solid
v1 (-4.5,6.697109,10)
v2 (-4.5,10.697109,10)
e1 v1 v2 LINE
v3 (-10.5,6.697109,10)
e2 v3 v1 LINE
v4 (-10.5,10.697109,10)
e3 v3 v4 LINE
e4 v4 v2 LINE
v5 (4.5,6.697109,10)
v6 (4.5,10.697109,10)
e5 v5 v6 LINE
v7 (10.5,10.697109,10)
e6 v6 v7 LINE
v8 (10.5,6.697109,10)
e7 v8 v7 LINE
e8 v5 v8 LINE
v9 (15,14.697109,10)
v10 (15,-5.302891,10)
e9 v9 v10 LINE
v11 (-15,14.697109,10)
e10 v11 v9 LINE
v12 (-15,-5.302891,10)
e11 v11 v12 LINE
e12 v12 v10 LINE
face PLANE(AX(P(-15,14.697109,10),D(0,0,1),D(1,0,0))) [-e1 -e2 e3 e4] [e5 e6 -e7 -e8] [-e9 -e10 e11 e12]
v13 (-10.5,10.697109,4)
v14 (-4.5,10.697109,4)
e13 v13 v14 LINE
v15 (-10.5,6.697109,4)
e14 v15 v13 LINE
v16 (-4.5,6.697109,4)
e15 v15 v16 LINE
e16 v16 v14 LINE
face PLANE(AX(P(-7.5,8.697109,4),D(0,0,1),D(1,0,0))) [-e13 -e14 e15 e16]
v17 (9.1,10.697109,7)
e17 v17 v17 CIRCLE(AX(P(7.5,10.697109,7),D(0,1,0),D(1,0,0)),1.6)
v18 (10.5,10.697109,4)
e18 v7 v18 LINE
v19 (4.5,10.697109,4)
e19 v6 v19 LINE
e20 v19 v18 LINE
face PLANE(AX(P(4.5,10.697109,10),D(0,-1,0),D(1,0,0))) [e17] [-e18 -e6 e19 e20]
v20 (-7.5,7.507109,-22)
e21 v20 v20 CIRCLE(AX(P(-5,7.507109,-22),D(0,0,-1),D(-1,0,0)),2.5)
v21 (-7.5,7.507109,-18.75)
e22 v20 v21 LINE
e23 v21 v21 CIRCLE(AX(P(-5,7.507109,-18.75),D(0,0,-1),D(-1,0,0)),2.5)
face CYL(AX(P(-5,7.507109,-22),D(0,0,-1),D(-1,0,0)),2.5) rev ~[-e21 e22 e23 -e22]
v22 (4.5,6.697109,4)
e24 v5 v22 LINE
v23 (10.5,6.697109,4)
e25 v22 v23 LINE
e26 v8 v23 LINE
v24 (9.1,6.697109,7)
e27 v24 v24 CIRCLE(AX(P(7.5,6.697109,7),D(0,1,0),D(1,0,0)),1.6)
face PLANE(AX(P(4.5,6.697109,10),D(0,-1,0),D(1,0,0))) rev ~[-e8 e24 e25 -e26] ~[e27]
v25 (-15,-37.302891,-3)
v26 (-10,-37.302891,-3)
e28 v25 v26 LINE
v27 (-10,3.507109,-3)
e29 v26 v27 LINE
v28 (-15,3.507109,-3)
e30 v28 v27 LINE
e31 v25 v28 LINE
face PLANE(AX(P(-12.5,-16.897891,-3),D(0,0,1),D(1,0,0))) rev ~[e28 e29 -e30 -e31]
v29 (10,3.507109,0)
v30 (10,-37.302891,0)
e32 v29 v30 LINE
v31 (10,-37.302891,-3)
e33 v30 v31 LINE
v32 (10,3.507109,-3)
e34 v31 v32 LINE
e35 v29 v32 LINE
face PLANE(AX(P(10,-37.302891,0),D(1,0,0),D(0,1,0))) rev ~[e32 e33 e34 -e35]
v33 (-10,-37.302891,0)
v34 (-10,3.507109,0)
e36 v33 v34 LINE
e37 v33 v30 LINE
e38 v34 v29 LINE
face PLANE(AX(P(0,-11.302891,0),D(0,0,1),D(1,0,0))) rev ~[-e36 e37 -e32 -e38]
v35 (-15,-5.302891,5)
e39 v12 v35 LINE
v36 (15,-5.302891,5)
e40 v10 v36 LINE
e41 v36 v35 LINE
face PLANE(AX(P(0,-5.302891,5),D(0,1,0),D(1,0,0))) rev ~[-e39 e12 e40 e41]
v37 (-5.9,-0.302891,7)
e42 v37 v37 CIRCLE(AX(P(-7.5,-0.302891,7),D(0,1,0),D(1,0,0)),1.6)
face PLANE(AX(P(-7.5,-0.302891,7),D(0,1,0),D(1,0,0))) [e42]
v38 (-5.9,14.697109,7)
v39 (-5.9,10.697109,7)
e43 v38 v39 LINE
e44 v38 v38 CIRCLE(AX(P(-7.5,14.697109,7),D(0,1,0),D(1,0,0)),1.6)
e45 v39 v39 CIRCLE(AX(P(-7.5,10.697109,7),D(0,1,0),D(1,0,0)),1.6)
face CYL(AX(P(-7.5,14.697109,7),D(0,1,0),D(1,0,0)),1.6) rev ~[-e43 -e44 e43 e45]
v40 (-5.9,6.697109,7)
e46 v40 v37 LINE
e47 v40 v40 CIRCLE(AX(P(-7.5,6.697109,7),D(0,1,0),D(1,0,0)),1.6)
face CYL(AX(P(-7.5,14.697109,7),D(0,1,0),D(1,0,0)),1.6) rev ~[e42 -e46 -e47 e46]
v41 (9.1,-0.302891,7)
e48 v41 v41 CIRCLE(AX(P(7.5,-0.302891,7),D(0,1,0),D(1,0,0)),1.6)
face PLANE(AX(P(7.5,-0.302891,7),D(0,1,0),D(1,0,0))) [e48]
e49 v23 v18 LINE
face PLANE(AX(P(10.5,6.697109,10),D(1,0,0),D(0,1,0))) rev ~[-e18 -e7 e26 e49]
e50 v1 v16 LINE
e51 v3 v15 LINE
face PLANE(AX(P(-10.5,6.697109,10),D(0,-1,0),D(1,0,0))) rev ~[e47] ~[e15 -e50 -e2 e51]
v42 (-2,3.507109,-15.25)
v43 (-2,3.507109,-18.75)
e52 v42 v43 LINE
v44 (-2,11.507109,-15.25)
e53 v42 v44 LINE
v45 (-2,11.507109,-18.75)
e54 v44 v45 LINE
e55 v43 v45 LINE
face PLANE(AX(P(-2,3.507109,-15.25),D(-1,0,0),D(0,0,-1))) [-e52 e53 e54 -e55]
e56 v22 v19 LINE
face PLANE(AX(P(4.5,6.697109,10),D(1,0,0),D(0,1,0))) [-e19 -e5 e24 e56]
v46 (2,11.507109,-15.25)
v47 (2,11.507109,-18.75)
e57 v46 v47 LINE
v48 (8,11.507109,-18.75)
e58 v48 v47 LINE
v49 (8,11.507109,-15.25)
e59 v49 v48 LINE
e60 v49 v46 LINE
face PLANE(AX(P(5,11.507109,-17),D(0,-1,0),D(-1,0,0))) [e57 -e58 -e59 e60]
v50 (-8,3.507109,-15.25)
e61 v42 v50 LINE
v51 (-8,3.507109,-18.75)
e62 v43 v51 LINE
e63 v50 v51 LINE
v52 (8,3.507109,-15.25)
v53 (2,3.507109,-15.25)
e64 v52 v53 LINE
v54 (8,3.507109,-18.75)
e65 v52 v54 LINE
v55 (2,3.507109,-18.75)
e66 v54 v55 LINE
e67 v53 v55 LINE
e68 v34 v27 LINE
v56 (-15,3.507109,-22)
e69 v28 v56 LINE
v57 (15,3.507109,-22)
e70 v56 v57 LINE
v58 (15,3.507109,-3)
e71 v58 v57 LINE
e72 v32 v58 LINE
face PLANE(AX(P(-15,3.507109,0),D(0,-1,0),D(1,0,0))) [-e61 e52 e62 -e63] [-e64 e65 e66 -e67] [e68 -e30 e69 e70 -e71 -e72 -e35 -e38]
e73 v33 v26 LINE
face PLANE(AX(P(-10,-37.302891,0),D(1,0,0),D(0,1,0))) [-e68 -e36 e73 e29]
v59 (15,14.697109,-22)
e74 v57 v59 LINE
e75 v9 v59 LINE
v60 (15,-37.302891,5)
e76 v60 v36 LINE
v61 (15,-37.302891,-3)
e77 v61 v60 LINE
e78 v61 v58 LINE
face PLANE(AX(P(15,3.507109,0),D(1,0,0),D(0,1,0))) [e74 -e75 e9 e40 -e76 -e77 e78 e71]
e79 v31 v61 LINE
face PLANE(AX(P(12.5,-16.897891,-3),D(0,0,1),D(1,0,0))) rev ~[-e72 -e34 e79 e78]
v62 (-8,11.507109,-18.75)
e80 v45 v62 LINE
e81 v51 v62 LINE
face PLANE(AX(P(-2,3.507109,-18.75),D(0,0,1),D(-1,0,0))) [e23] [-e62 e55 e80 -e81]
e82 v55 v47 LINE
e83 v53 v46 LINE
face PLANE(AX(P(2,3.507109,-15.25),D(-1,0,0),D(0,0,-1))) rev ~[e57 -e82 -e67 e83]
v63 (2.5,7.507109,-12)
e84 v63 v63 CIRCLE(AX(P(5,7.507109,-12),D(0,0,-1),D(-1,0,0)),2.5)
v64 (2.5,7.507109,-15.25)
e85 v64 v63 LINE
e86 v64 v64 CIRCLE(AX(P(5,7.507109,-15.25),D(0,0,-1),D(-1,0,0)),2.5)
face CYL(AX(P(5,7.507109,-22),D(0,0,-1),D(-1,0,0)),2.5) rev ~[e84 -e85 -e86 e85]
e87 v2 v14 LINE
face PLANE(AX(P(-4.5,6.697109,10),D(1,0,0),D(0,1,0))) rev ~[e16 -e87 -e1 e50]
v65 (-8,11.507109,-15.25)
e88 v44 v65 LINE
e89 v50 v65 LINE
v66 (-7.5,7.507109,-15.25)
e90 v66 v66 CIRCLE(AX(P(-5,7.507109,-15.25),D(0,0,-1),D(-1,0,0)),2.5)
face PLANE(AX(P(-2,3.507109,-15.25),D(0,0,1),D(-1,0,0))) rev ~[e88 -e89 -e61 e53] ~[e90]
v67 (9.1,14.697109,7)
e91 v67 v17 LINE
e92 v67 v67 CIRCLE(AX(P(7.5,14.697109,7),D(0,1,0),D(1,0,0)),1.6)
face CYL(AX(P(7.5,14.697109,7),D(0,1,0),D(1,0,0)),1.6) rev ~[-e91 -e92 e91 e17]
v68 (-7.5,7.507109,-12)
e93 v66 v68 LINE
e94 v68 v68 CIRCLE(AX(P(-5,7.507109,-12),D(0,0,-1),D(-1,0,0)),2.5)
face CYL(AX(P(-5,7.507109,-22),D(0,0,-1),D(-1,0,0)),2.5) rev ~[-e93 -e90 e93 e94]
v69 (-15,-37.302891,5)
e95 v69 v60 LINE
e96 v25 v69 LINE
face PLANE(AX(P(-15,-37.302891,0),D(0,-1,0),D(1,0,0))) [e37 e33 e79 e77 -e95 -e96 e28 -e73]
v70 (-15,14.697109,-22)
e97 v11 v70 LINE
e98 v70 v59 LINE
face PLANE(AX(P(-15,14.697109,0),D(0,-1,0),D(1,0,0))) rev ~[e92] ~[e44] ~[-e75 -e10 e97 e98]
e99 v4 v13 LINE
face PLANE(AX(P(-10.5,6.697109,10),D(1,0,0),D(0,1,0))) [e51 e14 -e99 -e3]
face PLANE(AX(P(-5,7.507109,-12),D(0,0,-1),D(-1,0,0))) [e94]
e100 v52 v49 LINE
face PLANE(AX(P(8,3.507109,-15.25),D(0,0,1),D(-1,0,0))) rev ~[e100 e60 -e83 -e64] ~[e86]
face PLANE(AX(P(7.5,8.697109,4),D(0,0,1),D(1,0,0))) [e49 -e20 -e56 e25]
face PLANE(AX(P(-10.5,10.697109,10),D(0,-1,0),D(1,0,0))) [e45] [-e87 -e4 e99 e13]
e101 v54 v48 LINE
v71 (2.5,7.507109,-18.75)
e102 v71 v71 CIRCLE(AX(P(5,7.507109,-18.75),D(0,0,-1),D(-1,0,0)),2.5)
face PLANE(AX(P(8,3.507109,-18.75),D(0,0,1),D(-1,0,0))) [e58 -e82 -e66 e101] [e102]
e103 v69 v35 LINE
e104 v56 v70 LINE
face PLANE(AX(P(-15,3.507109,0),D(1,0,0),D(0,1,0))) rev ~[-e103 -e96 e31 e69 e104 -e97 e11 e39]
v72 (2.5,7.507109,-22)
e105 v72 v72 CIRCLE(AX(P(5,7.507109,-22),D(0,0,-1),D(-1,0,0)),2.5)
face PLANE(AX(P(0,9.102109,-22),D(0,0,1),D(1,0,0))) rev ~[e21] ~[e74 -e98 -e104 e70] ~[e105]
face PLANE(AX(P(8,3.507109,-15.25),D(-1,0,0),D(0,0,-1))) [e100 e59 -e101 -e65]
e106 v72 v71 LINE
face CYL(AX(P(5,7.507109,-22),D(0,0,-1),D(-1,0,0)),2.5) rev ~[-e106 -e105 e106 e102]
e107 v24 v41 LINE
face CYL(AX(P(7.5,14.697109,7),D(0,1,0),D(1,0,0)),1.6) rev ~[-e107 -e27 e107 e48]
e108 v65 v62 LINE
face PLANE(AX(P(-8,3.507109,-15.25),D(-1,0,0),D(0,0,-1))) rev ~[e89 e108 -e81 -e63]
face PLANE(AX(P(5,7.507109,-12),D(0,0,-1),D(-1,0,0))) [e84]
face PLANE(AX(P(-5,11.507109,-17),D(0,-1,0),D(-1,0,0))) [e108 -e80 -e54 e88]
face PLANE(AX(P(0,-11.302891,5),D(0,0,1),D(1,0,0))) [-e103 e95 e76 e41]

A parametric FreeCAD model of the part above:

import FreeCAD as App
import Part
import Sketcher


def add_polygon(sketch, points):
    """Adds a closed chain of lines whose ends are joined by coincident constraints."""
    first, n = sketch.GeometryCount, len(points)
    for a, b in zip(points, points[1:] + points[:1]):
        sketch.addGeometry(Part.LineSegment(App.Vector(*a, 0), App.Vector(*b, 0)), False)
    for i in range(n):
        sketch.addConstraint(Sketcher.Constraint("Coincident", first + i, 2, first + (i + 1) % n, 1))

doc = App.newDocument("Part")
body = doc.addObject("PartDesign::Body", "Body")

# Sketch on XY plane
sketch1 = body.newObject("Sketcher::SketchObject", "Sketch")
sketch1.AttachmentSupport = (doc.getObject("XY_Plane"), [""])
sketch1.MapMode = "FlatFace"
add_polygon(sketch1, [(-15, 15), (-15, -37), (15, -37), (15, 15)])  # lines 0-3
sketch1.addConstraint([
    Sketcher.Constraint("Vertical", 0),
    Sketcher.Constraint("Horizontal", 1),
    Sketcher.Constraint("Vertical", 2),
    Sketcher.Constraint("Horizontal", 3),
    Sketcher.Constraint("DistanceX", 1, 1, 1, 2, 30.0),
    Sketcher.Constraint("DistanceY", 0, 2, 0, 1, 52.0),
    Sketcher.Constraint("DistanceX", 0, 2, -1, 1, 15.0),
    Sketcher.Constraint("DistanceY", 0, 2, -1, 1, 37.302891),
])
pad1 = body.newObject("PartDesign::Pad", "Pad")
pad1.Profile = sketch1
pad1.Length = 5

# Sketch on XY plane
sketch2 = body.newObject("Sketcher::SketchObject", "Sketch001")
sketch2.AttachmentSupport = (doc.getObject("XY_Plane"), [""])
sketch2.MapMode = "FlatFace"
add_polygon(sketch2, [(-15, 4), (-15, -37), (-10, -37), (-10, 4)])  # lines 0-3
add_polygon(sketch2, [(10, 4), (10, -37), (15, -37), (15, 4)])  # lines 4-7
sketch2.addConstraint([
    Sketcher.Constraint("Vertical", 0),
    Sketcher.Constraint("Horizontal", 1),
    Sketcher.Constraint("Vertical", 2),
    Sketcher.Constraint("Horizontal", 3),
    Sketcher.Constraint("Vertical", 4),
    Sketcher.Constraint("Horizontal", 5),
    Sketcher.Constraint("Vertical", 6),
    Sketcher.Constraint("Horizontal", 7),
    Sketcher.Constraint("Symmetric", 1, 2, 4, 2, -2),
    Sketcher.Constraint("Symmetric", 3, 2, 6, 2, -2),
    Sketcher.Constraint("DistanceX", 1, 1, 1, 2, 5.0),
    Sketcher.Constraint("DistanceX", 0, 2, -1, 1, 15.0),
    Sketcher.Constraint("DistanceY", 0, 2, 0, 1, 40.81),
    Sketcher.Constraint("DistanceY", 0, 2, -1, 1, 37.302891),
])
pad2 = body.newObject("PartDesign::Pad", "Pad001")
pad2.Profile = sketch2
pad2.Length = 3
pad2.Reversed = True

# Sketch on XZ plane
sketch3 = body.newObject("Sketcher::SketchObject", "Sketch002")
sketch3.AttachmentSupport = (doc.getObject("XZ_Plane"), [""])
sketch3.MapMode = "FlatFace"
sketch3.AttachmentOffset = App.Placement(App.Vector(0, 0, -14.697109), App.Rotation())
add_polygon(sketch3, [(-15, 0), (-15, 10), (15, 10), (15, 0)])  # lines 0-3
sketch3.addConstraint([
    Sketcher.Constraint("Vertical", 0),
    Sketcher.Constraint("Horizontal", 1),
    Sketcher.Constraint("Vertical", 2),
    Sketcher.Constraint("Horizontal", 3),
    Sketcher.Constraint("Symmetric", 2, 2, 3, 2, -1, 1),
    Sketcher.Constraint("DistanceX", 1, 1, 1, 2, 30.0),
    Sketcher.Constraint("DistanceY", 0, 1, 0, 2, 10.0),
])
pad3 = body.newObject("PartDesign::Pad", "Pad002")
pad3.Profile = sketch3
pad3.Length = 20

# Sketch on XZ plane
sketch4 = body.newObject("Sketcher::SketchObject", "Sketch003")
sketch4.AttachmentSupport = (doc.getObject("XZ_Plane"), [""])
sketch4.MapMode = "FlatFace"
sketch4.AttachmentOffset = App.Placement(App.Vector(0, 0, -14.697109), App.Rotation())
sketch4.addGeometry([
    Part.Circle(App.Vector(-7.5, 7, 0), App.Vector(0, 0, 1), 1.6),
    Part.Circle(App.Vector(7.5, 7, 0), App.Vector(0, 0, 1), 1.6),
], False)
sketch4.addConstraint([
    Sketcher.Constraint("Equal", 0, 1),
    Sketcher.Constraint("Symmetric", 0, 3, 1, 3, -2),
    Sketcher.Constraint("Diameter", 0, 3.2),
    Sketcher.Constraint("DistanceY", -1, 1, 0, 3, 7.0),
    Sketcher.Constraint("DistanceX", 0, 3, 1, 3, 15.0),
])
pocket1 = body.newObject("PartDesign::Pocket", "Pocket")
pocket1.Profile = sketch4
pocket1.Length = 15
pocket1.Reversed = True

# Sketch on XY plane
sketch5 = body.newObject("Sketcher::SketchObject", "Sketch004")
sketch5.AttachmentSupport = (doc.getObject("XY_Plane"), [""])
sketch5.MapMode = "FlatFace"
sketch5.AttachmentOffset = App.Placement(App.Vector(0, 0, 10), App.Rotation())
add_polygon(sketch5, [(-10.5, 10.7), (-10.5, 6.7), (-4.5, 6.7), (-4.5, 10.7)])  # lines 0-3
add_polygon(sketch5, [(4.5, 10.7), (4.5, 6.7), (10.5, 6.7), (10.5, 10.7)])  # lines 4-7
sketch5.addConstraint([
    Sketcher.Constraint("Vertical", 0),
    Sketcher.Constraint("Horizontal", 1),
    Sketcher.Constraint("Vertical", 2),
    Sketcher.Constraint("Horizontal", 3),
    Sketcher.Constraint("Vertical", 4),
    Sketcher.Constraint("Horizontal", 5),
    Sketcher.Constraint("Vertical", 6),
    Sketcher.Constraint("Horizontal", 7),
    Sketcher.Constraint("Symmetric", 1, 2, 4, 2, -2),
    Sketcher.Constraint("Symmetric", 3, 2, 6, 2, -2),
    Sketcher.Constraint("DistanceX", 1, 1, 1, 2, 6.0),
    Sketcher.Constraint("DistanceY", 0, 2, 0, 1, 4.0),
    Sketcher.Constraint("DistanceX", 1, 2, 4, 2, 9.0),
    Sketcher.Constraint("DistanceY", -1, 1, 0, 2, 6.697109),
])
pocket2 = body.newObject("PartDesign::Pocket", "Pocket001")
pocket2.Profile = sketch5
pocket2.Length = 6

# Sketch on XY plane
sketch6 = body.newObject("Sketcher::SketchObject", "Sketch005")
sketch6.AttachmentSupport = (doc.getObject("XY_Plane"), [""])
sketch6.MapMode = "FlatFace"
add_polygon(sketch6, [(-15, 15), (-15, 4), (15, 4), (15, 15)])  # lines 0-3
sketch6.addConstraint([
    Sketcher.Constraint("Vertical", 0),
    Sketcher.Constraint("Horizontal", 1),
    Sketcher.Constraint("Vertical", 2),
    Sketcher.Constraint("Horizontal", 3),
    Sketcher.Constraint("DistanceX", 1, 1, 1, 2, 30.0),
    Sketcher.Constraint("DistanceX", 0, 2, -1, 1, 15.0),
    Sketcher.Constraint("DistanceY", 0, 2, 0, 1, 11.19),
    Sketcher.Constraint("DistanceY", -1, 1, 0, 2, 3.507109),
])
pad4 = body.newObject("PartDesign::Pad", "Pad003")
pad4.Profile = sketch6
pad4.Length = 22
pad4.Reversed = True

# Sketch on XY plane
sketch7 = body.newObject("Sketcher::SketchObject", "Sketch006")
sketch7.AttachmentSupport = (doc.getObject("XY_Plane"), [""])
sketch7.MapMode = "FlatFace"
sketch7.AttachmentOffset = App.Placement(App.Vector(0, 0, -22), App.Rotation())
sketch7.addGeometry([
    Part.Circle(App.Vector(5, 7.5, 0), App.Vector(0, 0, 1), 2.5),
    Part.Circle(App.Vector(-5, 7.5, 0), App.Vector(0, 0, 1), 2.5),
], False)
sketch7.addConstraint([
    Sketcher.Constraint("Equal", 0, 1),
    Sketcher.Constraint("Symmetric", 0, 3, 1, 3, -2),
    Sketcher.Constraint("Diameter", 0, 5.0),
    Sketcher.Constraint("DistanceX", -1, 1, 0, 3, 5.0),
    Sketcher.Constraint("DistanceY", -1, 1, 0, 3, 7.507109),
])
pocket3 = body.newObject("PartDesign::Pocket", "Pocket002")
pocket3.Profile = sketch7
pocket3.Length = 10
pocket3.Reversed = True

# Sketch on XZ plane
sketch8 = body.newObject("Sketcher::SketchObject", "Sketch007")
sketch8.AttachmentSupport = (doc.getObject("XZ_Plane"), [""])
sketch8.MapMode = "FlatFace"
sketch8.AttachmentOffset = App.Placement(App.Vector(0, 0, -3.507109), App.Rotation())
add_polygon(sketch8, [(-2, -18.8), (-2, -15.2), (-8, -15.2), (-8, -18.8)])  # lines 0-3
add_polygon(sketch8, [(8, -18.8), (8, -15.2), (2, -15.2), (2, -18.8)])  # lines 4-7
sketch8.addConstraint([
    Sketcher.Constraint("Vertical", 0),
    Sketcher.Constraint("Horizontal", 1),
    Sketcher.Constraint("Vertical", 2),
    Sketcher.Constraint("Horizontal", 3),
    Sketcher.Constraint("Vertical", 4),
    Sketcher.Constraint("Horizontal", 5),
    Sketcher.Constraint("Vertical", 6),
    Sketcher.Constraint("Horizontal", 7),
    Sketcher.Constraint("Symmetric", 1, 2, 4, 2, -2),
    Sketcher.Constraint("Symmetric", 3, 2, 6, 2, -2),
    Sketcher.Constraint("DistanceX", 1, 2, 1, 1, 6.0),
    Sketcher.Constraint("DistanceY", 0, 1, 0, 2, 3.5),
    Sketcher.Constraint("DistanceX", 0, 2, -1, 1, 2.0),
    Sketcher.Constraint("DistanceY", 0, 2, -1, 1, 15.25),
])
pocket4 = body.newObject("PartDesign::Pocket", "Pocket003")
pocket4.Profile = sketch8
pocket4.Length = 8

doc.recompute()
